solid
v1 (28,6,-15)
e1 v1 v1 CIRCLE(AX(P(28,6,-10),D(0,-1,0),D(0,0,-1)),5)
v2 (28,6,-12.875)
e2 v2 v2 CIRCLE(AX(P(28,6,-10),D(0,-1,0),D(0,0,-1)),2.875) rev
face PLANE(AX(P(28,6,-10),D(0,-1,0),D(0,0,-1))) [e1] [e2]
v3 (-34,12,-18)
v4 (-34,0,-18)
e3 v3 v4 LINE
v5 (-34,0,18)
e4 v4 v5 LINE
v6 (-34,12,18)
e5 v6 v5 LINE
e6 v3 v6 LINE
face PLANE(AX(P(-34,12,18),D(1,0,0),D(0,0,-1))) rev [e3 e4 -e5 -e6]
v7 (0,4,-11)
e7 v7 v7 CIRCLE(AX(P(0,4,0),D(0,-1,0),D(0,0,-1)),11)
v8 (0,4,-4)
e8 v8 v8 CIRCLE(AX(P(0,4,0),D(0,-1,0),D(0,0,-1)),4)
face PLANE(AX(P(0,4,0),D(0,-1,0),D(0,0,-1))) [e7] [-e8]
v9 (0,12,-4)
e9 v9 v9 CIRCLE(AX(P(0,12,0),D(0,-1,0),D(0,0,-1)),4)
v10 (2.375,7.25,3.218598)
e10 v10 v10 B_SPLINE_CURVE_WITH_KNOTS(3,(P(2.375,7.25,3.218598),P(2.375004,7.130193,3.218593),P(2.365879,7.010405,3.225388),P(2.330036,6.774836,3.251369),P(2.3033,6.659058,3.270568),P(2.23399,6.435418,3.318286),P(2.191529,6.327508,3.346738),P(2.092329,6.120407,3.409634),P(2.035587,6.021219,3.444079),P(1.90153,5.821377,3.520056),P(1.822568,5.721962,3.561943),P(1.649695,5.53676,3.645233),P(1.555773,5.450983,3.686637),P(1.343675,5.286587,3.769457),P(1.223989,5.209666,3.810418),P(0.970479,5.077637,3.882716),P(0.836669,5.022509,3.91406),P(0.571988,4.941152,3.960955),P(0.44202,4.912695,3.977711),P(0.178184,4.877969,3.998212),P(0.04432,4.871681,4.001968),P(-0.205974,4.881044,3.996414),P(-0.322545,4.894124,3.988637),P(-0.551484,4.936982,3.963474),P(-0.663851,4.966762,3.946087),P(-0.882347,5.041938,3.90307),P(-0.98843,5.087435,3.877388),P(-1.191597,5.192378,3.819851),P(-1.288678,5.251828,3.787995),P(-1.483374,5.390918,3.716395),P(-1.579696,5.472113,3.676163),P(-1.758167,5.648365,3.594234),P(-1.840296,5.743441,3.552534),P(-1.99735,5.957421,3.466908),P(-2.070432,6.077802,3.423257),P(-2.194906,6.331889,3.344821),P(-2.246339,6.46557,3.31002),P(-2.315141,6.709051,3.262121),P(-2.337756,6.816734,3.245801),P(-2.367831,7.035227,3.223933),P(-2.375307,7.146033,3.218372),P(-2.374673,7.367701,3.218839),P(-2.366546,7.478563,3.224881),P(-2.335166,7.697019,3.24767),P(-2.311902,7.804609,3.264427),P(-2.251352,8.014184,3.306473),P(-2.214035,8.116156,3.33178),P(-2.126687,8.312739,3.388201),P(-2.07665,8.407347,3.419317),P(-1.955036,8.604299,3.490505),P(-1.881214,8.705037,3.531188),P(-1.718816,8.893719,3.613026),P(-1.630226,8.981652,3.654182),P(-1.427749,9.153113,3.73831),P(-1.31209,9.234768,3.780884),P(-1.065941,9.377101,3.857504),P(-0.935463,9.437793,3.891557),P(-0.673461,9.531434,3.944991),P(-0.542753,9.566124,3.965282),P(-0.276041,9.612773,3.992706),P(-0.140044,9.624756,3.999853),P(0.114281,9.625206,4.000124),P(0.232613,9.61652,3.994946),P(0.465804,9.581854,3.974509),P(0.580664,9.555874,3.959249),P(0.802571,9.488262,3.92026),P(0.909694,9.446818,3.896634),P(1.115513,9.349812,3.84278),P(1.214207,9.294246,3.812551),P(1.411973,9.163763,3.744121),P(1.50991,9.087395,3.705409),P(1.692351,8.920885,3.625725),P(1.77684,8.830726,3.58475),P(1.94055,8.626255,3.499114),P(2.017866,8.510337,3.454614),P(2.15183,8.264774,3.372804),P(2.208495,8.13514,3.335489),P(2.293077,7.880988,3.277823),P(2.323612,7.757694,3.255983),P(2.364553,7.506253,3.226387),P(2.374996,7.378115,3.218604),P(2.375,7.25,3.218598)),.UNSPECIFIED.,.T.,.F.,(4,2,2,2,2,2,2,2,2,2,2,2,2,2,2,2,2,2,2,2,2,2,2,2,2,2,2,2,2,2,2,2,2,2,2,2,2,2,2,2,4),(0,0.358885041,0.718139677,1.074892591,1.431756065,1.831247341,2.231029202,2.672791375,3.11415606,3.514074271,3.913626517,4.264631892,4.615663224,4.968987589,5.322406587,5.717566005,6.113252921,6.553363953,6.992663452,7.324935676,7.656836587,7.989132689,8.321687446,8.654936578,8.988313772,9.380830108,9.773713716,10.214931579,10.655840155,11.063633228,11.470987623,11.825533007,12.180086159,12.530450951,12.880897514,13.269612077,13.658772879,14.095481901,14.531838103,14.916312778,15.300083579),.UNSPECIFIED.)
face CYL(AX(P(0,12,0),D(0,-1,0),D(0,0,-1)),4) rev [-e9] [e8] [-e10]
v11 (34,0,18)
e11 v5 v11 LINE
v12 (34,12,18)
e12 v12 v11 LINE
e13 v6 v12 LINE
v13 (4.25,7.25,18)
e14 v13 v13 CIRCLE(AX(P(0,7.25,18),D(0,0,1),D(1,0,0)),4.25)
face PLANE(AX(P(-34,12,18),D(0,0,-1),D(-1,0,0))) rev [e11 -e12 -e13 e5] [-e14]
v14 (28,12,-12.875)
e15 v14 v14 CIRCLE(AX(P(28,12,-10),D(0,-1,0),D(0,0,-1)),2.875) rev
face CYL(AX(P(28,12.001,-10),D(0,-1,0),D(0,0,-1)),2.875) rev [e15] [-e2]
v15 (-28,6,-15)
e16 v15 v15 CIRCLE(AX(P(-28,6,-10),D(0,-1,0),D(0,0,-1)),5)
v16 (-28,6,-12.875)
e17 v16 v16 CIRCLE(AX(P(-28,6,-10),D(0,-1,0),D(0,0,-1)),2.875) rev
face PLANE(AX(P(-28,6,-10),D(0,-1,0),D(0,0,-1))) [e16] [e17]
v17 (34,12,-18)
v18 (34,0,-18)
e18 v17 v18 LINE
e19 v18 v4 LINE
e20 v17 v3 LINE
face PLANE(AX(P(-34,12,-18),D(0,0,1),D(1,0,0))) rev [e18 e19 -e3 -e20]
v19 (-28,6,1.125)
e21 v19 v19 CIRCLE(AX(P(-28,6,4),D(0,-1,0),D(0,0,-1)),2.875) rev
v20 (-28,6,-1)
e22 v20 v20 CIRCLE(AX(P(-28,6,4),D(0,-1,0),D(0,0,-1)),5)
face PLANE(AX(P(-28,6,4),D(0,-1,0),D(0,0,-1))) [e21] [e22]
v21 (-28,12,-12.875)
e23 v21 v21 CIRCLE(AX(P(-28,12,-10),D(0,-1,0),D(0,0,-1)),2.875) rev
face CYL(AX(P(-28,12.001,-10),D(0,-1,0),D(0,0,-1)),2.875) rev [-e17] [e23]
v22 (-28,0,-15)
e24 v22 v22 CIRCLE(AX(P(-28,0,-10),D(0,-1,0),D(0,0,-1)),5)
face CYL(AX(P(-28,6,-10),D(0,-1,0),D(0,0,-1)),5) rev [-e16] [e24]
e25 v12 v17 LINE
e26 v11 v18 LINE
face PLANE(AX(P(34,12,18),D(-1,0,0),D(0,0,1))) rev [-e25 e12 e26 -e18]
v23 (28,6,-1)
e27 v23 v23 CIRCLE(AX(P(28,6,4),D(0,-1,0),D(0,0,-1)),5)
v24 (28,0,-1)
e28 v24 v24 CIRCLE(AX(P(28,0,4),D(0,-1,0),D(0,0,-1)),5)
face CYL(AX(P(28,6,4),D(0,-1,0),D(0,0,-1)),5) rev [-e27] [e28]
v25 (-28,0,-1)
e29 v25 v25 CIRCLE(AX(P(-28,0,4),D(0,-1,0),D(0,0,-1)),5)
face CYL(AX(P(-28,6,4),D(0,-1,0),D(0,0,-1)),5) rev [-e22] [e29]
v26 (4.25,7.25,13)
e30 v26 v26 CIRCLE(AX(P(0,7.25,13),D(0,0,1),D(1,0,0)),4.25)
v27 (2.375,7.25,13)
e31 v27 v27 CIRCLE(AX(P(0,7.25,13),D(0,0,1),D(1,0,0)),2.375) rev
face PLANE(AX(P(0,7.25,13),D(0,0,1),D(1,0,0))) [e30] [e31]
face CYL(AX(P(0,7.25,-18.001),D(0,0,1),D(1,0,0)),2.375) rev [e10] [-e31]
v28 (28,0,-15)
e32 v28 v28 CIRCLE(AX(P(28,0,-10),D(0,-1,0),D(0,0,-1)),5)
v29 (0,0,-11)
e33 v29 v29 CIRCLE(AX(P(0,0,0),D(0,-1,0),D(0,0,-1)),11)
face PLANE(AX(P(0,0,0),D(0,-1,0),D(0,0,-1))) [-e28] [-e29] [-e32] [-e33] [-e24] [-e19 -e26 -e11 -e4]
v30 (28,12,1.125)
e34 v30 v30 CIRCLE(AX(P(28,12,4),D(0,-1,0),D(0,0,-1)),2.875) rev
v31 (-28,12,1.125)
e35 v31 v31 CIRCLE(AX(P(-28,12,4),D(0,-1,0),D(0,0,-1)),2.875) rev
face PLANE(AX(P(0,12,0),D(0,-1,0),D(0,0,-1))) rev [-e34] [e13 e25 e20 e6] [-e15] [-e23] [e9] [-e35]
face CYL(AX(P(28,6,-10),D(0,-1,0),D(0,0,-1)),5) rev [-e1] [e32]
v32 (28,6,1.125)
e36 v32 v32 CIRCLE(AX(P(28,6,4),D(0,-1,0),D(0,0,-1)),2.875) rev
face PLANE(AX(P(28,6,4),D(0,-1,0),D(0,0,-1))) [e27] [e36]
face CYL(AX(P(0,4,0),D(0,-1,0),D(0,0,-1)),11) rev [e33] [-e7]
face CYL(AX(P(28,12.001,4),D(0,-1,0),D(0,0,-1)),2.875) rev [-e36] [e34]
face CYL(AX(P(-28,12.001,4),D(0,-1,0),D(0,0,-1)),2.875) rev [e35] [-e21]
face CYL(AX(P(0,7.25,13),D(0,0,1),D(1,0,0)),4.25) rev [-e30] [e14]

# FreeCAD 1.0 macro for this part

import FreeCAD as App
import Part
import Sketcher

V = App.Vector


def add_polygon(sketch, points):
    """Adds a closed chain of lines whose ends are joined by coincident constraints."""
    first, n = sketch.GeometryCount, len(points)
    for a, b in zip(points, points[1:] + points[:1]):
        sketch.addGeometry(Part.LineSegment(App.Vector(*a, 0), App.Vector(*b, 0)), False)
    for i in range(n):
        sketch.addConstraint(Sketcher.Constraint("Coincident", first + i, 2, first + (i + 1) % n, 1))

doc = App.newDocument("Part")
params = doc.addObject("Spreadsheet::Sheet", "Params")
for row, (alias, value) in enumerate([
    ("sketch1_width", "68 mm"),
    ("sketch1_height", "36 mm"),
    ("pad1_length", "12 mm"),
    ("sketch2_diameter", "22 mm"),
    ("pocket1_length", "4 mm"),
    ("sketch3_diameter", "8 mm"),
    ("sketch4_diameter", "4.75 mm"),
    ("sketch5_diameter", "5.75 mm"),
    ("sketch6_diameter", "5.75 mm"),
    ("sketch7_diameter", "5.75 mm"),
    ("sketch8_diameter", "5.75 mm"),
    ("sketch9_diameter", "10 mm"),
    ("pocket8_length", "6 mm"),
    ("sketch10_diameter", "8.5 mm"),
    ("pocket9_length", "5 mm"),
], start=1):
    params.set(f"A{row}", alias)
    params.set(f"B{row}", "=" + value)
    params.setAlias(f"B{row}", alias)

body = doc.addObject("PartDesign::Body", "Body")

# Sketch on XZ plane
sketch1 = body.newObject("Sketcher::SketchObject", "Sketch")
sketch1.AttachmentSupport = (doc.getObject("XZ_Plane"), [""])
sketch1.MapMode = "FlatFace"
add_polygon(sketch1, [(-34, -18), (-34, 18), (34, 18), (34, -18)])  # lines 0-3
sketch1.addConstraint(Sketcher.Constraint("Vertical", 0))
sketch1.addConstraint(Sketcher.Constraint("Horizontal", 1))
sketch1.addConstraint(Sketcher.Constraint("Vertical", 2))
sketch1.addConstraint(Sketcher.Constraint("Horizontal", 3))
sketch1.addConstraint(Sketcher.Constraint("Symmetric", 0, 2, 2, 2, -1, 1))
sketch1.addConstraint(Sketcher.Constraint("DistanceX", 1, 1, 1, 2, 68.0))
sketch1.addConstraint(Sketcher.Constraint("DistanceY", 0, 1, 0, 2, 36.0))
sketch1.setExpression("Constraints[9]", "Params.sketch1_width")
sketch1.setExpression("Constraints[10]", "Params.sketch1_height")
pad1 = body.newObject("PartDesign::Pad", "Pad")
pad1.Profile = sketch1
pad1.setExpression("Length", "Params.pad1_length")
pad1.Reversed = True

# Sketch on XZ plane
sketch2 = body.newObject("Sketcher::SketchObject", "Sketch001")
sketch2.AttachmentSupport = (doc.getObject("XZ_Plane"), [""])
sketch2.MapMode = "FlatFace"
sketch2.addGeometry(Part.Circle(V(0, 0, 0), V(0, 0, 1), 11), False)
sketch2.addConstraint(Sketcher.Constraint("Coincident", 0, 3, -1, 1))
sketch2.addConstraint(Sketcher.Constraint("Diameter", 0, 22.0))
sketch2.setExpression("Constraints[1]", "Params.sketch2_diameter")
pocket1 = body.newObject("PartDesign::Pocket", "Pocket")
pocket1.Profile = sketch2
pocket1.setExpression("Length", "Params.pocket1_length")

# Sketch on XZ plane
sketch3 = body.newObject("Sketcher::SketchObject", "Sketch002")
sketch3.AttachmentSupport = (doc.getObject("XZ_Plane"), [""])
sketch3.MapMode = "FlatFace"
sketch3.AttachmentOffset = App.Placement(V(0, 0, -4), App.Rotation())
sketch3.addGeometry(Part.Circle(V(0, 0, 0), V(0, 0, 1), 4), False)
sketch3.addConstraint(Sketcher.Constraint("Coincident", 0, 3, -1, 1))
sketch3.addConstraint(Sketcher.Constraint("Diameter", 0, 8.0))
sketch3.setExpression("Constraints[1]", "Params.sketch3_diameter")
pocket2 = body.newObject("PartDesign::Pocket", "Pocket001")
pocket2.Profile = sketch3
pocket2.Type = "ThroughAll"

# Sketch on XY plane
sketch4 = body.newObject("Sketcher::SketchObject", "Sketch003")
sketch4.AttachmentSupport = (doc.getObject("XY_Plane"), [""])
sketch4.MapMode = "FlatFace"
sketch4.AttachmentOffset = App.Placement(V(0, 0, 18), App.Rotation())
sketch4.addGeometry(Part.Circle(V(0, 7.2, 0), V(0, 0, 1), 2.4), False)
sketch4.addConstraint(Sketcher.Constraint("PointOnObject", 0, 3, -2))
sketch4.addConstraint(Sketcher.Constraint("Diameter", 0, 4.75))
sketch4.addConstraint(Sketcher.Constraint("DistanceY", -1, 1, 0, 3, 7.25))
sketch4.setExpression("Constraints[1]", "Params.sketch4_diameter")
pocket3 = body.newObject("PartDesign::Pocket", "Pocket002")
pocket3.Profile = sketch4
pocket3.Type = "UpToFirst"

# Sketch on XZ plane
sketch5 = body.newObject("Sketcher::SketchObject", "Sketch004")
sketch5.AttachmentSupport = (doc.getObject("XZ_Plane"), [""])
sketch5.MapMode = "FlatFace"
sketch5.addGeometry(Part.Circle(V(28, 4, 0), V(0, 0, 1), 2.9), False)
sketch5.addConstraint(Sketcher.Constraint("Diameter", 0, 5.75))
sketch5.addConstraint(Sketcher.Constraint("DistanceX", -1, 1, 0, 3, 28.0))
sketch5.addConstraint(Sketcher.Constraint("DistanceY", -1, 1, 0, 3, 4.0))
sketch5.setExpression("Constraints[0]", "Params.sketch5_diameter")
pocket4 = body.newObject("PartDesign::Pocket", "Pocket003")
pocket4.Profile = sketch5
pocket4.Type = "UpToFirst"

# Sketch on XZ plane
sketch6 = body.newObject("Sketcher::SketchObject", "Sketch005")
sketch6.AttachmentSupport = (doc.getObject("XZ_Plane"), [""])
sketch6.MapMode = "FlatFace"
sketch6.addGeometry(Part.Circle(V(28, -10, 0), V(0, 0, 1), 2.9), False)
sketch6.addConstraint(Sketcher.Constraint("Diameter", 0, 5.75))
sketch6.addConstraint(Sketcher.Constraint("DistanceX", -1, 1, 0, 3, 28.0))
sketch6.addConstraint(Sketcher.Constraint("DistanceY", 0, 3, -1, 1, 10.0))
sketch6.setExpression("Constraints[0]", "Params.sketch6_diameter")
pocket5 = body.newObject("PartDesign::Pocket", "Pocket004")
pocket5.Profile = sketch6
pocket5.Type = "UpToFirst"

# Sketch on XZ plane
sketch7 = body.newObject("Sketcher::SketchObject", "Sketch006")
sketch7.AttachmentSupport = (doc.getObject("XZ_Plane"), [""])
sketch7.MapMode = "FlatFace"
sketch7.addGeometry(Part.Circle(V(-28, 4, 0), V(0, 0, 1), 2.9), False)
sketch7.addConstraint(Sketcher.Constraint("Diameter", 0, 5.75))
sketch7.addConstraint(Sketcher.Constraint("DistanceX", 0, 3, -1, 1, 28.0))
sketch7.addConstraint(Sketcher.Constraint("DistanceY", -1, 1, 0, 3, 4.0))
sketch7.setExpression("Constraints[0]", "Params.sketch7_diameter")
pocket6 = body.newObject("PartDesign::Pocket", "Pocket005")
pocket6.Profile = sketch7
pocket6.Type = "UpToFirst"

# Sketch on XZ plane
sketch8 = body.newObject("Sketcher::SketchObject", "Sketch007")
sketch8.AttachmentSupport = (doc.getObject("XZ_Plane"), [""])
sketch8.MapMode = "FlatFace"
sketch8.addGeometry(Part.Circle(V(-28, -10, 0), V(0, 0, 1), 2.9), False)
sketch8.addConstraint(Sketcher.Constraint("Diameter", 0, 5.75))
sketch8.addConstraint(Sketcher.Constraint("DistanceX", 0, 3, -1, 1, 28.0))
sketch8.addConstraint(Sketcher.Constraint("DistanceY", 0, 3, -1, 1, 10.0))
sketch8.setExpression("Constraints[0]", "Params.sketch8_diameter")
pocket7 = body.newObject("PartDesign::Pocket", "Pocket006")
pocket7.Profile = sketch8
pocket7.Type = "UpToFirst"

# Sketch on XZ plane
sketch9 = body.newObject("Sketcher::SketchObject", "Sketch008")
sketch9.AttachmentSupport = (doc.getObject("XZ_Plane"), [""])
sketch9.MapMode = "FlatFace"
sketch9.addGeometry(Part.Circle(V(-28, 4, 0), V(0, 0, 1), 5), False)
sketch9.addGeometry(Part.Circle(V(28, 4, 0), V(0, 0, 1), 5), False)
sketch9.addGeometry(Part.Circle(V(28, -10, 0), V(0, 0, 1), 5), False)
sketch9.addGeometry(Part.Circle(V(-28, -10, 0), V(0, 0, 1), 5), False)
sketch9.addConstraint(Sketcher.Constraint("Equal", 0, 1))
sketch9.addConstraint(Sketcher.Constraint("Equal", 1, 2))
sketch9.addConstraint(Sketcher.Constraint("Equal", 2, 3))
sketch9.addConstraint(Sketcher.Constraint("Symmetric", 0, 3, 1, 3, -2))
sketch9.addConstraint(Sketcher.Constraint("Symmetric", 2, 3, 3, 3, -2))
sketch9.addConstraint(Sketcher.Constraint("Vertical", 1, 3, 2, 3))
sketch9.addConstraint(Sketcher.Constraint("Diameter", 0, 10.0))
sketch9.addConstraint(Sketcher.Constraint("DistanceX", 0, 3, -1, 1, 28.0))
sketch9.addConstraint(Sketcher.Constraint("DistanceY", -1, 1, 0, 3, 4.0))
sketch9.addConstraint(Sketcher.Constraint("DistanceY", 2, 3, -1, 1, 10.0))
sketch9.setExpression("Constraints[6]", "Params.sketch9_diameter")
pocket8 = body.newObject("PartDesign::Pocket", "Pocket007")
pocket8.Profile = sketch9
pocket8.setExpression("Length", "Params.pocket8_length")

# Sketch on XY plane
sketch10 = body.newObject("Sketcher::SketchObject", "Sketch009")
sketch10.AttachmentSupport = (doc.getObject("XY_Plane"), [""])
sketch10.MapMode = "FlatFace"
sketch10.AttachmentOffset = App.Placement(V(0, 0, 18), App.Rotation())
sketch10.addGeometry(Part.Circle(V(0, 7.2, 0), V(0, 0, 1), 4.2), False)
sketch10.addConstraint(Sketcher.Constraint("PointOnObject", 0, 3, -2))
sketch10.addConstraint(Sketcher.Constraint("Diameter", 0, 8.5))
sketch10.addConstraint(Sketcher.Constraint("DistanceY", -1, 1, 0, 3, 7.25))
sketch10.setExpression("Constraints[1]", "Params.sketch10_diameter")
pocket9 = body.newObject("PartDesign::Pocket", "Pocket008")
pocket9.Profile = sketch10
pocket9.setExpression("Length", "Params.pocket9_length")

doc.recompute()
